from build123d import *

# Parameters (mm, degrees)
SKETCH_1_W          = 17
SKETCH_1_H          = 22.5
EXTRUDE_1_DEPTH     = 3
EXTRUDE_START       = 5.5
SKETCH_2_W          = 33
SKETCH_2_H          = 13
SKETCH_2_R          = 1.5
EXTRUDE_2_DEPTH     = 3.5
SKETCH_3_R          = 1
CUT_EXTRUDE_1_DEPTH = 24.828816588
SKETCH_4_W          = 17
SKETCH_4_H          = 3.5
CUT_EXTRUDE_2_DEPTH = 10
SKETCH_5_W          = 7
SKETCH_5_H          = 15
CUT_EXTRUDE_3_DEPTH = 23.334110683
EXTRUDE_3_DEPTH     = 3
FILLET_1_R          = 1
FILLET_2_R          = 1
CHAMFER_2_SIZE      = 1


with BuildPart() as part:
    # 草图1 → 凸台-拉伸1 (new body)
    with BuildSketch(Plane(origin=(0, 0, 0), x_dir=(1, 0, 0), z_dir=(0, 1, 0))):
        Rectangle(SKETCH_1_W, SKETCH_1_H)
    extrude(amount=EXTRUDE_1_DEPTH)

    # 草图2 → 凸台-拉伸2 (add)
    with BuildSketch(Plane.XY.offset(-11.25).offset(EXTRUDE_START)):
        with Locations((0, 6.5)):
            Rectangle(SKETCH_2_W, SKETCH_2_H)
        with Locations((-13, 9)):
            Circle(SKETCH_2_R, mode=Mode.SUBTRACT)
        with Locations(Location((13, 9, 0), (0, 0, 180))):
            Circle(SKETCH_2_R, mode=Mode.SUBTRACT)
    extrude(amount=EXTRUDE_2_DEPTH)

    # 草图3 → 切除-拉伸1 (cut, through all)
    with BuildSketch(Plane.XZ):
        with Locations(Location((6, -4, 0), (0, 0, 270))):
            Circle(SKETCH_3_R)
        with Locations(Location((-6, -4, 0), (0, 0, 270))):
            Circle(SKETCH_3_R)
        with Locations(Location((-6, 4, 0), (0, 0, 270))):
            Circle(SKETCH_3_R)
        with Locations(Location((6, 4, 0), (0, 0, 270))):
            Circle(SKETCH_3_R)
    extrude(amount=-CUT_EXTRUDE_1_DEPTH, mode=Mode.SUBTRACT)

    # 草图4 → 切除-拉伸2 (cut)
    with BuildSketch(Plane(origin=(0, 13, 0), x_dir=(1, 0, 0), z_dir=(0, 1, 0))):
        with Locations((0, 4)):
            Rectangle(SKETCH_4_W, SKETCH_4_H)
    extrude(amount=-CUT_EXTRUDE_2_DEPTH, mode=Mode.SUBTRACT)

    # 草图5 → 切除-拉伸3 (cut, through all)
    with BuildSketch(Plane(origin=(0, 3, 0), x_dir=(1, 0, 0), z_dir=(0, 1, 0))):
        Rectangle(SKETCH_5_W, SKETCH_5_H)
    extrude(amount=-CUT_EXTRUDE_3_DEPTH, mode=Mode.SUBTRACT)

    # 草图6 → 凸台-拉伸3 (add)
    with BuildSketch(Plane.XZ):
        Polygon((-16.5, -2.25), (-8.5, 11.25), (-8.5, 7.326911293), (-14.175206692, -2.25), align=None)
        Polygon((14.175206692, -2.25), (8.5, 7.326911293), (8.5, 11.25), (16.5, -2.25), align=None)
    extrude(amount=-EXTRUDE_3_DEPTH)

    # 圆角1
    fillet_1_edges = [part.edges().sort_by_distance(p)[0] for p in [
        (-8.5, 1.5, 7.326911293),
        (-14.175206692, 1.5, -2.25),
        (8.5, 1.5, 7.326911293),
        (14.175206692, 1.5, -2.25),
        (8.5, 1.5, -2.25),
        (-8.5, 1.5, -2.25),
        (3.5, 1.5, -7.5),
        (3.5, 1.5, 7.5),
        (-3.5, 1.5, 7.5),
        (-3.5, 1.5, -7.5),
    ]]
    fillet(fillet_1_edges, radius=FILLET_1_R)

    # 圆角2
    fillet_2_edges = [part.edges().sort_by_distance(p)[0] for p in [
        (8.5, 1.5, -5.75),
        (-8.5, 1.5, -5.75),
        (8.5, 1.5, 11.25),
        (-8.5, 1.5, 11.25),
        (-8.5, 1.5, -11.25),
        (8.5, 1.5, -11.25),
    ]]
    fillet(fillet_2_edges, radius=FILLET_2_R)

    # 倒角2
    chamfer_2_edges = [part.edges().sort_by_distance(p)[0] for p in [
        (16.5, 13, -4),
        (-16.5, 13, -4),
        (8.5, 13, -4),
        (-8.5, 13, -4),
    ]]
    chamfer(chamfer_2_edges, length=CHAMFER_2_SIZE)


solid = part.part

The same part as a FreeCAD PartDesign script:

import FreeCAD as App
import Part
import Sketcher
from FreeCAD import Vector
Q = App.Units.Quantity


def edges_at(feature, points):
    """Names of the edges that pass closest to the given points."""
    edges = feature.Shape.Edges
    near = lambda p: min(range(len(edges)), key=lambda i: edges[i].distToShape(Part.Vertex(*p))[0])
    return sorted({f"Edge{near(p) + 1}" for p in points})

doc = App.newDocument("Part")
params = doc.addObject("Spreadsheet::Sheet", "Params")
for row, (alias, value) in enumerate([
    ("sketch1_width", "17 mm"),
    ("sketch1_height", "22.5 mm"),
    ("pad1_length", "3 mm"),
    ("sketch2_diameter", "3 mm"),
    ("sketch2_width", "33 mm"),
    ("sketch2_height", "13 mm"),
    ("pad2_length", "3.5 mm"),
    ("sketch3_diameter", "2 mm"),
    ("sketch4_width", "17 mm"),
    ("sketch4_height", "3.5 mm"),
    ("pocket2_length", "10 mm"),
    ("sketch5_width", "7 mm"),
    ("sketch5_height", "15 mm"),
    ("pad3_length", "3 mm"),
    ("fillet_radius", "1 mm"),
    ("fillet2_radius", "1 mm"),
    ("chamfer_size", "1 mm"),
], start=1):
    params.set(f"A{row}", alias)
    params.set(f"B{row}", "=" + value)
    params.setAlias(f"B{row}", alias)

body = doc.addObject("PartDesign::Body", "Body")

# Sketch on XZ plane
sketch1 = body.newObject("Sketcher::SketchObject", "Sketch")
sketch1.AttachmentSupport = (doc.getObject("XZ_Plane"), [""])
sketch1.MapMode = "FlatFace"
sketch1.addGeometry([
    Part.LineSegment(Vector(-8, -11, 0), Vector(-8, 11, 0)),
    Part.LineSegment(Vector(-8, 11, 0), Vector(8, 11, 0)),
    Part.LineSegment(Vector(8, 11, 0), Vector(8, -11, 0)),
    Part.LineSegment(Vector(8, -11, 0), Vector(-8, -11, 0)),
], False)
sketch1.addConstraint([
    Sketcher.Constraint("Coincident", 0, 2, 1, 1),
    Sketcher.Constraint("Coincident", 1, 2, 2, 1),
    Sketcher.Constraint("Coincident", 2, 2, 3, 1),
    Sketcher.Constraint("Coincident", 3, 2, 0, 1),
    Sketcher.Constraint("Vertical", 0),
    Sketcher.Constraint("Horizontal", 1),
    Sketcher.Constraint("Vertical", 2),
    Sketcher.Constraint("Horizontal", 3),
    Sketcher.Constraint("Symmetric", 0, 2, 2, 2, -1, 1),
    Sketcher.Constraint("DistanceX", 1, 1, 1, 2, Q("17 mm")),
    Sketcher.Constraint("DistanceY", 0, 1, 0, 2, Q("22.5 mm")),
])
sketch1.setExpression("Constraints[9]", "Params.sketch1_width")
sketch1.setExpression("Constraints[10]", "Params.sketch1_height")
pad1 = body.newObject("PartDesign::Pad", "Pad")
pad1.Profile = sketch1
pad1.setExpression("Length", "Params.pad1_length")
pad1.Reversed = True

# Sketch on XY plane
sketch2 = body.newObject("Sketcher::SketchObject", "Sketch001")
sketch2.AttachmentSupport = (doc.getObject("XY_Plane"), [""])
sketch2.MapMode = "FlatFace"
sketch2.AttachmentOffset = App.Placement(Vector(0, 0, -5.75), App.Rotation())
sketch2.addGeometry([
    Part.LineSegment(Vector(-16.5, 13, 0), Vector(-16.5, 0, 0)),  # 0
    Part.LineSegment(Vector(-16.5, 0, 0), Vector(16.5, 0, 0)),  # 1
    Part.LineSegment(Vector(16.5, 0, 0), Vector(16.5, 13, 0)),  # 2
    Part.LineSegment(Vector(16.5, 13, 0), Vector(-16.5, 13, 0)),  # 3
    Part.Circle(Vector(-13, 9, 0), Vector(0, 0, 1), 1.5),  # 4
    Part.Circle(Vector(13, 9, 0), Vector(0, 0, 1), 1.5),  # 5
], False)
sketch2.addConstraint([
    Sketcher.Constraint("Coincident", 0, 2, 1, 1),
    Sketcher.Constraint("Coincident", 1, 2, 2, 1),
    Sketcher.Constraint("Coincident", 2, 2, 3, 1),
    Sketcher.Constraint("Coincident", 3, 2, 0, 1),
    Sketcher.Constraint("Vertical", 0),
    Sketcher.Constraint("Horizontal", 1),
    Sketcher.Constraint("Vertical", 2),
    Sketcher.Constraint("Horizontal", 3),
    Sketcher.Constraint("Equal", 4, 5),
    Sketcher.Constraint("Symmetric", 0, 2, 1, 2, -1, 1),
    Sketcher.Constraint("Symmetric", 4, 3, 5, 3, -2),
    Sketcher.Constraint("Diameter", 4, Q("3 mm")),
    Sketcher.Constraint("DistanceX", 1, 1, 1, 2, Q("33 mm")),
    Sketcher.Constraint("DistanceY", 0, 2, 0, 1, Q("13 mm")),
    Sketcher.Constraint("DistanceX", 4, 3, -1, 1, Q("13 mm")),
    Sketcher.Constraint("DistanceY", -1, 1, 4, 3, Q("9 mm")),
])
sketch2.setExpression("Constraints[11]", "Params.sketch2_diameter")
sketch2.setExpression("Constraints[12]", "Params.sketch2_width")
sketch2.setExpression("Constraints[13]", "Params.sketch2_height")
pad2 = body.newObject("PartDesign::Pad", "Pad001")
pad2.Profile = sketch2
pad2.setExpression("Length", "Params.pad2_length")

# Sketch on XZ plane
sketch3 = body.newObject("Sketcher::SketchObject", "Sketch002")
sketch3.AttachmentSupport = (doc.getObject("XZ_Plane"), [""])
sketch3.MapMode = "FlatFace"
sketch3.addGeometry([
    Part.Circle(Vector(6, -4, 0), Vector(0, 0, 1), 1),
    Part.Circle(Vector(-6, -4, 0), Vector(0, 0, 1), 1),
    Part.Circle(Vector(-6, 4, 0), Vector(0, 0, 1), 1),
    Part.Circle(Vector(6, 4, 0), Vector(0, 0, 1), 1),
], False)
sketch3.addConstraint([
    Sketcher.Constraint("Equal", 0, 1),
    Sketcher.Constraint("Equal", 1, 2),
    Sketcher.Constraint("Equal", 2, 3),
    Sketcher.Constraint("Symmetric", 0, 3, 2, 3, -1, 1),
    Sketcher.Constraint("Symmetric", 1, 3, 3, 3, -1, 1),
    Sketcher.Constraint("Symmetric", 0, 3, 1, 3, -2),
    Sketcher.Constraint("Diameter", 0, Q("2 mm")),
    Sketcher.Constraint("DistanceX", -1, 1, 0, 3, Q("6 mm")),
    Sketcher.Constraint("DistanceY", 0, 3, -1, 1, Q("4 mm")),
])
sketch3.setExpression("Constraints[6]", "Params.sketch3_diameter")
pocket1 = body.newObject("PartDesign::Pocket", "Pocket")
pocket1.Profile = sketch3
pocket1.Type = "ThroughAll"

# Sketch on XZ plane
sketch4 = body.newObject("Sketcher::SketchObject", "Sketch003")
sketch4.AttachmentSupport = (doc.getObject("XZ_Plane"), [""])
sketch4.MapMode = "FlatFace"
sketch4.AttachmentOffset = App.Placement(Vector(0, 0, -13), App.Rotation())
sketch4.addGeometry([
    Part.LineSegment(Vector(-8.5, -5.8, 0), Vector(-8.5, -2.2, 0)),
    Part.LineSegment(Vector(-8.5, -2.2, 0), Vector(8.5, -2.2, 0)),
    Part.LineSegment(Vector(8.5, -2.2, 0), Vector(8.5, -5.8, 0)),
    Part.LineSegment(Vector(8.5, -5.8, 0), Vector(-8.5, -5.8, 0)),
], False)
sketch4.addConstraint([
    Sketcher.Constraint("Coincident", 0, 2, 1, 1),
    Sketcher.Constraint("Coincident", 1, 2, 2, 1),
    Sketcher.Constraint("Coincident", 2, 2, 3, 1),
    Sketcher.Constraint("Coincident", 3, 2, 0, 1),
    Sketcher.Constraint("Vertical", 0),
    Sketcher.Constraint("Horizontal", 1),
    Sketcher.Constraint("Vertical", 2),
    Sketcher.Constraint("Horizontal", 3),
    Sketcher.Constraint("DistanceX", 1, 1, 1, 2, Q("17 mm")),
    Sketcher.Constraint("DistanceY", 0, 1, 0, 2, Q("3.5 mm")),
    Sketcher.Constraint("DistanceX", 0, 2, -1, 1, Q("8.5 mm")),
    Sketcher.Constraint("DistanceY", 0, 2, -1, 1, Q("2.25 mm")),
])
sketch4.setExpression("Constraints[8]", "Params.sketch4_width")
sketch4.setExpression("Constraints[9]", "Params.sketch4_height")
pocket2 = body.newObject("PartDesign::Pocket", "Pocket001")
pocket2.Profile = sketch4
pocket2.setExpression("Length", "Params.pocket2_length")
pocket2.Reversed = True

# Sketch on XZ plane
sketch5 = body.newObject("Sketcher::SketchObject", "Sketch004")
sketch5.AttachmentSupport = (doc.getObject("XZ_Plane"), [""])
sketch5.MapMode = "FlatFace"
sketch5.AttachmentOffset = App.Placement(Vector(0, 0, -3), App.Rotation())
sketch5.addGeometry([
    Part.LineSegment(Vector(-4, -8, 0), Vector(-4, 8, 0)),
    Part.LineSegment(Vector(-4, 8, 0), Vector(4, 8, 0)),
    Part.LineSegment(Vector(4, 8, 0), Vector(4, -8, 0)),
    Part.LineSegment(Vector(4, -8, 0), Vector(-4, -8, 0)),
], False)
sketch5.addConstraint([
    Sketcher.Constraint("Coincident", 0, 2, 1, 1),
    Sketcher.Constraint("Coincident", 1, 2, 2, 1),
    Sketcher.Constraint("Coincident", 2, 2, 3, 1),
    Sketcher.Constraint("Coincident", 3, 2, 0, 1),
    Sketcher.Constraint("Vertical", 0),
    Sketcher.Constraint("Horizontal", 1),
    Sketcher.Constraint("Vertical", 2),
    Sketcher.Constraint("Horizontal", 3),
    Sketcher.Constraint("Symmetric", 0, 2, 2, 2, -1, 1),
    Sketcher.Constraint("DistanceX", 1, 1, 1, 2, Q("7 mm")),
    Sketcher.Constraint("DistanceY", 0, 1, 0, 2, Q("15 mm")),
])
sketch5.setExpression("Constraints[9]", "Params.sketch5_width")
sketch5.setExpression("Constraints[10]", "Params.sketch5_height")
pocket3 = body.newObject("PartDesign::Pocket", "Pocket002")
pocket3.Profile = sketch5
pocket3.Type = "ThroughAll"
pocket3.Reversed = True

# Sketch on XZ plane
sketch6 = body.newObject("Sketcher::SketchObject", "Sketch005")
sketch6.AttachmentSupport = (doc.getObject("XZ_Plane"), [""])
sketch6.MapMode = "FlatFace"
sketch6.addGeometry([
    Part.LineSegment(Vector(-8.5, 11.2, 0), Vector(-16.5, -2.2, 0)),  # 0
    Part.LineSegment(Vector(-16.5, -2.2, 0), Vector(-14.2, -2.2, 0)),  # 1
    Part.LineSegment(Vector(-14.2, -2.2, 0), Vector(-8.5, 7.3, 0)),  # 2
    Part.LineSegment(Vector(-8.5, 7.3, 0), Vector(-8.5, 11.2, 0)),  # 3
    Part.LineSegment(Vector(8.5, 7.3, 0), Vector(14.2, -2.2, 0)),  # 4
    Part.LineSegment(Vector(14.2, -2.2, 0), Vector(16.5, -2.2, 0)),  # 5
    Part.LineSegment(Vector(16.5, -2.2, 0), Vector(8.5, 11.2, 0)),  # 6
    Part.LineSegment(Vector(8.5, 11.2, 0), Vector(8.5, 7.3, 0)),  # 7
], False)
sketch6.addConstraint([
    Sketcher.Constraint("Coincident", 0, 2, 1, 1),
    Sketcher.Constraint("Coincident", 1, 2, 2, 1),
    Sketcher.Constraint("Coincident", 2, 2, 3, 1),
    Sketcher.Constraint("Coincident", 3, 2, 0, 1),
    Sketcher.Constraint("Coincident", 4, 2, 5, 1),
    Sketcher.Constraint("Coincident", 5, 2, 6, 1),
    Sketcher.Constraint("Coincident", 6, 2, 7, 1),
    Sketcher.Constraint("Coincident", 7, 2, 4, 1),
    Sketcher.Constraint("Horizontal", 1),
    Sketcher.Constraint("Vertical", 3),
    Sketcher.Constraint("Horizontal", 5),
    Sketcher.Constraint("Vertical", 7),
    Sketcher.Constraint("Symmetric", 1, 2, 4, 2, -2),
    Sketcher.Constraint("Symmetric", 3, 2, 6, 2, -2),
    Sketcher.Constraint("Parallel", 0, 2),
    Sketcher.Constraint("Parallel", 4, 6),
    Sketcher.Constraint("Horizontal", 2, 2, 7, 2),
    Sketcher.Constraint("DistanceX", 0, 2, 2, 2, Q("8 mm")),
    Sketcher.Constraint("DistanceX", 2, 2, 5, 2, Q("25 mm")),
    Sketcher.Constraint("DistanceY", 1, 2, 3, 2, Q("13.5 mm")),
    Sketcher.Constraint("DistanceY", 0, 2, -1, 1, Q("2.25 mm")),
    Sketcher.Constraint("DistanceY", 3, 1, 3, 2, Q("3.923089 mm")),
])
pad3 = body.newObject("PartDesign::Pad", "Pad002")
pad3.Profile = sketch6
pad3.setExpression("Length", "Params.pad3_length")
pad3.Reversed = True
doc.recompute()

fillet = body.newObject("PartDesign::Fillet", "Fillet")
fillet.Base = (pad3, edges_at(pad3, [
    (-8.5, 1.5, 7.327),
    (-14.175, 1.5, -2.25),
    (8.5, 1.5, 7.327),
    (14.175, 1.5, -2.25),
    (8.5, 1.5, -2.25),
    (-8.5, 1.5, -2.25),
    (3.5, 1.5, -7.5),
    (3.5, 1.5, 7.5),
    (-3.5, 1.5, 7.5),
    (-3.5, 1.5, -7.5),
]))
fillet.setExpression("Radius", "Params.fillet_radius")
doc.recompute()

fillet2 = body.newObject("PartDesign::Fillet", "Fillet001")
fillet2.Base = (fillet, edges_at(fillet, [
    (8.5, 1.5, -5.75),
    (-8.5, 1.5, -5.75),
    (8.5, 1.5, 11.25),
    (-8.5, 1.5, 11.25),
    (-8.5, 1.5, -11.25),
    (8.5, 1.5, -11.25),
]))
fillet2.setExpression("Radius", "Params.fillet2_radius")
doc.recompute()

chamfer = body.newObject("PartDesign::Chamfer", "Chamfer")
chamfer.Base = (fillet2, edges_at(fillet2, [
    (16.5, 13, -4),
    (-16.5, 13, -4),
    (8.5, 13, -4),
    (-8.5, 13, -4),
]))
chamfer.setExpression("Size", "Params.chamfer_size")

doc.recompute()
